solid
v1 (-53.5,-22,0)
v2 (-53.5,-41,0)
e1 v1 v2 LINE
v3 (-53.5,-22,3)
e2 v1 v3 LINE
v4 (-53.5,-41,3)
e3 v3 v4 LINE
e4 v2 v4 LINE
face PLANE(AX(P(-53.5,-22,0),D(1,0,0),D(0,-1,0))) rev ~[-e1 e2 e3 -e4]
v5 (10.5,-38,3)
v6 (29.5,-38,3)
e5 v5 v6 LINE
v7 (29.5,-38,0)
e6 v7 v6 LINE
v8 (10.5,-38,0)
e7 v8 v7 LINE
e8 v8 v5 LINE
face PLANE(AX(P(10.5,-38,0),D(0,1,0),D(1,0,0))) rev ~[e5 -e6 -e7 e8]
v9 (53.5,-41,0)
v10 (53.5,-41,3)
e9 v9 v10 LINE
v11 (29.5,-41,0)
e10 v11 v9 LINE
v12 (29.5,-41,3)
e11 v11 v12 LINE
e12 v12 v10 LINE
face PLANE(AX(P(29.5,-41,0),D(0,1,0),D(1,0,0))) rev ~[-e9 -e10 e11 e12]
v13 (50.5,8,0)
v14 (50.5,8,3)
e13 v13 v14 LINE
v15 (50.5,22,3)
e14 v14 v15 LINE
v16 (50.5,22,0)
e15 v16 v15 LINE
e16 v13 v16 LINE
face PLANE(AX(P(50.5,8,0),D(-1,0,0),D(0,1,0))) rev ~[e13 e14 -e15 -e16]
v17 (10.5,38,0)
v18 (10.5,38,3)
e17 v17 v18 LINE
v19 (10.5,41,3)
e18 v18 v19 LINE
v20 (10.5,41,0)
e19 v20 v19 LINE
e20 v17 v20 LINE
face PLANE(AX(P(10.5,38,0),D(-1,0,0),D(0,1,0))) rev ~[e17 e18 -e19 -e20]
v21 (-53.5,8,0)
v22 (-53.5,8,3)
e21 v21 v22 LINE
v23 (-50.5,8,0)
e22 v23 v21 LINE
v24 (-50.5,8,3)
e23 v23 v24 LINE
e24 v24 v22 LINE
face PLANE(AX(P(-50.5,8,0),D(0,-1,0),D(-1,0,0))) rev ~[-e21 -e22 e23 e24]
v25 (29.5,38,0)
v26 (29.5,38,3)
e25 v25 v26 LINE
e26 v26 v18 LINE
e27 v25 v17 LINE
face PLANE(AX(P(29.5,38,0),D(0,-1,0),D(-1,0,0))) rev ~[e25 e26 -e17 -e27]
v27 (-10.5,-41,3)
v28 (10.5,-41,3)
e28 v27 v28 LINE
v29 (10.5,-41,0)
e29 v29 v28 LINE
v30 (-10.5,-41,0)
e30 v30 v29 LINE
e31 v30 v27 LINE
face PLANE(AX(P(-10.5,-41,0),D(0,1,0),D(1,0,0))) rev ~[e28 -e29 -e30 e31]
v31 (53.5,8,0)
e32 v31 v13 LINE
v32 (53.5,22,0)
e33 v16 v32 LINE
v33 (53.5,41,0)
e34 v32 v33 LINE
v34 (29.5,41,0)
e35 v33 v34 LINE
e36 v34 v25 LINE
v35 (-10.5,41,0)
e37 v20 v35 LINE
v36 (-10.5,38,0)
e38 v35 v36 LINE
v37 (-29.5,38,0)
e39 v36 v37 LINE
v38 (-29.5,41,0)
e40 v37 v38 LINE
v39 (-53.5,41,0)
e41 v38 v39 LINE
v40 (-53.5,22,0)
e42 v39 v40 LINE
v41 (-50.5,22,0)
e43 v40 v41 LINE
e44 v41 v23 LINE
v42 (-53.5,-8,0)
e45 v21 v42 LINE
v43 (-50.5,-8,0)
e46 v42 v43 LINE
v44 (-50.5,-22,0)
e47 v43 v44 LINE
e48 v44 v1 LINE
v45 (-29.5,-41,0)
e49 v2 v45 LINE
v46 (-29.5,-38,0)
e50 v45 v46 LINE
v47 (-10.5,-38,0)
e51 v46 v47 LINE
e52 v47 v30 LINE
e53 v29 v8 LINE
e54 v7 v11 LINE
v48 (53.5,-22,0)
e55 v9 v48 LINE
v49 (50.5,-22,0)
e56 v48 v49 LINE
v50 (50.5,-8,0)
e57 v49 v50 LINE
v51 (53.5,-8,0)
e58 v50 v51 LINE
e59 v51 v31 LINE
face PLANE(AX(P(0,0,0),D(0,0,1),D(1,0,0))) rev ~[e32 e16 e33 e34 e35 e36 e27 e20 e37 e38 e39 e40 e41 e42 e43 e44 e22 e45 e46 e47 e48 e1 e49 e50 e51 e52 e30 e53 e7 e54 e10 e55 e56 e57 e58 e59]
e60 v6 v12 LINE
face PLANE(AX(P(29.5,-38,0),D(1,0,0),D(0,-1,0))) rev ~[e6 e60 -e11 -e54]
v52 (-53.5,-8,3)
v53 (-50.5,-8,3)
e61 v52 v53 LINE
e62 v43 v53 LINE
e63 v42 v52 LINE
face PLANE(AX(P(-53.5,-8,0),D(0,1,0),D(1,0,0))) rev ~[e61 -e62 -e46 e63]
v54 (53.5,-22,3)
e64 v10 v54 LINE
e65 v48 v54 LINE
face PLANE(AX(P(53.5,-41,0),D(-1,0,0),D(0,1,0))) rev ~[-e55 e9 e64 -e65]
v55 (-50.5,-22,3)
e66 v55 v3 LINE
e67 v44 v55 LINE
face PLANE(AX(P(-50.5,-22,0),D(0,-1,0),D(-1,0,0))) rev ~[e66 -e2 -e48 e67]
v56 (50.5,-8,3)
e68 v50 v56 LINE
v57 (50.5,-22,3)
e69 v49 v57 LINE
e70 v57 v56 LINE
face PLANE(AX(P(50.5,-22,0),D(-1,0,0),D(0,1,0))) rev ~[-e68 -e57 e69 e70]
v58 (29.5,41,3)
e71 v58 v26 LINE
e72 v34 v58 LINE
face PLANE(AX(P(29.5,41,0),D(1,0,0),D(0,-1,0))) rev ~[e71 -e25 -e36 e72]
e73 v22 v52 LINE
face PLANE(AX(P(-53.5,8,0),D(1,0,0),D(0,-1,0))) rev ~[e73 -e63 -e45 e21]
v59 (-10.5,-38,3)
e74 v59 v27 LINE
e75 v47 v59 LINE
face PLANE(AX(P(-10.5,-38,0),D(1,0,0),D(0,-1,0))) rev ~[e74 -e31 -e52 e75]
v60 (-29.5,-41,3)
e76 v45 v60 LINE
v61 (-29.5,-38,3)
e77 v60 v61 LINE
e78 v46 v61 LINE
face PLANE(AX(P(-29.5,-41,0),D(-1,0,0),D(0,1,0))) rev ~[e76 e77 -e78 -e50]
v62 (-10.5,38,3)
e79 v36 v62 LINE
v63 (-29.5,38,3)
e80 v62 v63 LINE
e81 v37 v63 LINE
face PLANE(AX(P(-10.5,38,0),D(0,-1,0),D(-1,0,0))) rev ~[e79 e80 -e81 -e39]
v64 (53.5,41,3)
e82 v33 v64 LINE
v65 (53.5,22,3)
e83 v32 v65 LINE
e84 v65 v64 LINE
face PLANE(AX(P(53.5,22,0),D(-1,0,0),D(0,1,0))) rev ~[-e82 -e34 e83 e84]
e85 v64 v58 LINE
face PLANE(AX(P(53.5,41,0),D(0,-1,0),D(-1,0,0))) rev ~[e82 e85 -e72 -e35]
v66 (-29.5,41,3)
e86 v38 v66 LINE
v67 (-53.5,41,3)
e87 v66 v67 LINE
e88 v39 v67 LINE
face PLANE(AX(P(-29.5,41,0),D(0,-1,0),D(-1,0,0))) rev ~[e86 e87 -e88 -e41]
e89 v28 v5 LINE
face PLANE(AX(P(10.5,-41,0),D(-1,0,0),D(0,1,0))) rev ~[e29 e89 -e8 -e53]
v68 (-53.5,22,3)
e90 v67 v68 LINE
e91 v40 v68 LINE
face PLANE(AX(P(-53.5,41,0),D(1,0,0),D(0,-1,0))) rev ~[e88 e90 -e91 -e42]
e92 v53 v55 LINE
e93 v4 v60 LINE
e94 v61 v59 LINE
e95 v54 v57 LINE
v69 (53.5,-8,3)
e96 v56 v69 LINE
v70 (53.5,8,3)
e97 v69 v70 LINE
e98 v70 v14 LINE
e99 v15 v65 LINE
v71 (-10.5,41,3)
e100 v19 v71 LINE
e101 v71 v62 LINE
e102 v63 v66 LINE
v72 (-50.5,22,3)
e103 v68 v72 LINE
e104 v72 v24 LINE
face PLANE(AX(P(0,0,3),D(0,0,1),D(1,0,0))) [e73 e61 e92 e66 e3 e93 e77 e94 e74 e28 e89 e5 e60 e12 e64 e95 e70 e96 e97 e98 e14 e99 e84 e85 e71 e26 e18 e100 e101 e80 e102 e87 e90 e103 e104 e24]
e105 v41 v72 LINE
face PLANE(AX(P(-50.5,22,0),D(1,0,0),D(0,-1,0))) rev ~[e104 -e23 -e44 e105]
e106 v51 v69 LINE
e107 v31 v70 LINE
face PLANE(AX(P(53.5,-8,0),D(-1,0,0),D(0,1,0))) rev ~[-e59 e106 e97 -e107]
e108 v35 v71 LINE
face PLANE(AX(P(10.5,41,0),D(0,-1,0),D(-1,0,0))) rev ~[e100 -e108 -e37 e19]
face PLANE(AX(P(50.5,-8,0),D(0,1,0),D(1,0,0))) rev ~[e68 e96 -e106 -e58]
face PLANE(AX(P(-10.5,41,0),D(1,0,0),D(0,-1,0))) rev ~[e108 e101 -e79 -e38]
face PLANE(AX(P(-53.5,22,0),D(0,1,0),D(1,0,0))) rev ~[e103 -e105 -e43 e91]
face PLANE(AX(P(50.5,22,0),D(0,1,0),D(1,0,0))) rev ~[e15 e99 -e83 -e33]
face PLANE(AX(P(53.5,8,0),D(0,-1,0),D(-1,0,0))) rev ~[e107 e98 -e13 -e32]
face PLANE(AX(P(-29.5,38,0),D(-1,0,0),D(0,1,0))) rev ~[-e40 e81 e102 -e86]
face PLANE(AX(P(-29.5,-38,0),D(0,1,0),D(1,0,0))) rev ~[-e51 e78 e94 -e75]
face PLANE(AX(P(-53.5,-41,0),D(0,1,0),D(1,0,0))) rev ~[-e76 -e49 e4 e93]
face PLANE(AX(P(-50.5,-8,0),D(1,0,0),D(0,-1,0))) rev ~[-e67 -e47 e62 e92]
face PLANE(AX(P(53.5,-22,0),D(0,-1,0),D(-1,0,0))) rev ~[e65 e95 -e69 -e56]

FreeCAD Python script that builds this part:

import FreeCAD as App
import Part
import Sketcher
Q = App.Units.Quantity

doc = App.newDocument("Part")
body = doc.addObject("PartDesign::Body", "Body")

sketch1 = body.newObject("Sketcher::SketchObject", "Sketch")
sketch1.AttachmentSupport = (doc.getObject("XY_Plane"), [""])
sketch1.MapMode = "FlatFace"
sketch1.addGeometry([
    Part.LineSegment(App.Vector(10.5, -41, 0), App.Vector(10.5, -38, 0)),
    Part.LineSegment(App.Vector(10.5, -38, 0), App.Vector(29.5, -38, 0)),
    Part.LineSegment(App.Vector(29.5, -38, 0), App.Vector(29.5, -41, 0)),
    Part.LineSegment(App.Vector(29.5, -41, 0), App.Vector(53.5, -41, 0)),
    Part.LineSegment(App.Vector(53.5, -41, 0), App.Vector(53.5, -22, 0)),
    Part.LineSegment(App.Vector(53.5, -22, 0), App.Vector(50.5, -22, 0)),
    Part.LineSegment(App.Vector(50.5, -22, 0), App.Vector(50.5, -8, 0)),
    Part.LineSegment(App.Vector(50.5, -8, 0), App.Vector(53.5, -8, 0)),
    Part.LineSegment(App.Vector(53.5, -8, 0), App.Vector(53.5, 8, 0)),
    Part.LineSegment(App.Vector(53.5, 8, 0), App.Vector(50.5, 8, 0)),
    Part.LineSegment(App.Vector(50.5, 8, 0), App.Vector(50.5, 22, 0)),
    Part.LineSegment(App.Vector(50.5, 22, 0), App.Vector(53.5, 22, 0)),
    Part.LineSegment(App.Vector(53.5, 22, 0), App.Vector(53.5, 41, 0)),
    Part.LineSegment(App.Vector(53.5, 41, 0), App.Vector(29.5, 41, 0)),
    Part.LineSegment(App.Vector(29.5, 41, 0), App.Vector(29.5, 38, 0)),
    Part.LineSegment(App.Vector(29.5, 38, 0), App.Vector(10.5, 38, 0)),
    Part.LineSegment(App.Vector(10.5, 38, 0), App.Vector(10.5, 41, 0)),
    Part.LineSegment(App.Vector(10.5, 41, 0), App.Vector(-10.5, 41, 0)),
    Part.LineSegment(App.Vector(-10.5, 41, 0), App.Vector(-10.5, 38, 0)),
    Part.LineSegment(App.Vector(-10.5, 38, 0), App.Vector(-29.5, 38, 0)),
    Part.LineSegment(App.Vector(-29.5, 38, 0), App.Vector(-29.5, 41, 0)),
    Part.LineSegment(App.Vector(-29.5, 41, 0), App.Vector(-53.5, 41, 0)),
    Part.LineSegment(App.Vector(-53.5, 41, 0), App.Vector(-53.5, 22, 0)),
    Part.LineSegment(App.Vector(-53.5, 22, 0), App.Vector(-50.5, 22, 0)),
    Part.LineSegment(App.Vector(-50.5, 22, 0), App.Vector(-50.5, 8, 0)),
    Part.LineSegment(App.Vector(-50.5, 8, 0), App.Vector(-53.5, 8, 0)),
    Part.LineSegment(App.Vector(-53.5, 8, 0), App.Vector(-53.5, -8, 0)),
    Part.LineSegment(App.Vector(-53.5, -8, 0), App.Vector(-50.5, -8, 0)),
    Part.LineSegment(App.Vector(-50.5, -8, 0), App.Vector(-50.5, -22, 0)),
    Part.LineSegment(App.Vector(-50.5, -22, 0), App.Vector(-53.5, -22, 0)),
    Part.LineSegment(App.Vector(-53.5, -22, 0), App.Vector(-53.5, -41, 0)),
    Part.LineSegment(App.Vector(-53.5, -41, 0), App.Vector(-29.5, -41, 0)),
    Part.LineSegment(App.Vector(-29.5, -41, 0), App.Vector(-29.5, -38, 0)),
    Part.LineSegment(App.Vector(-29.5, -38, 0), App.Vector(-10.5, -38, 0)),
    Part.LineSegment(App.Vector(-10.5, -38, 0), App.Vector(-10.5, -41, 0)),
    Part.LineSegment(App.Vector(-10.5, -41, 0), App.Vector(10.5, -41, 0)),
], False)
sketch1.addConstraint([
    Sketcher.Constraint("Coincident", 0, 2, 1, 1),
    Sketcher.Constraint("Coincident", 1, 2, 2, 1),
    Sketcher.Constraint("Coincident", 2, 2, 3, 1),
    Sketcher.Constraint("Coincident", 3, 2, 4, 1),
    Sketcher.Constraint("Coincident", 4, 2, 5, 1),
    Sketcher.Constraint("Coincident", 5, 2, 6, 1),
    Sketcher.Constraint("Coincident", 6, 2, 7, 1),
    Sketcher.Constraint("Coincident", 7, 2, 8, 1),
    Sketcher.Constraint("Coincident", 8, 2, 9, 1),
    Sketcher.Constraint("Coincident", 9, 2, 10, 1),
    Sketcher.Constraint("Coincident", 10, 2, 11, 1),
    Sketcher.Constraint("Coincident", 11, 2, 12, 1),
    Sketcher.Constraint("Coincident", 12, 2, 13, 1),
    Sketcher.Constraint("Coincident", 13, 2, 14, 1),
    Sketcher.Constraint("Coincident", 14, 2, 15, 1),
    Sketcher.Constraint("Coincident", 15, 2, 16, 1),
    Sketcher.Constraint("Coincident", 16, 2, 17, 1),
    Sketcher.Constraint("Coincident", 17, 2, 18, 1),
    Sketcher.Constraint("Coincident", 18, 2, 19, 1),
    Sketcher.Constraint("Coincident", 19, 2, 20, 1),
    Sketcher.Constraint("Coincident", 20, 2, 21, 1),
    Sketcher.Constraint("Coincident", 21, 2, 22, 1),
    Sketcher.Constraint("Coincident", 22, 2, 23, 1),
    Sketcher.Constraint("Coincident", 23, 2, 24, 1),
    Sketcher.Constraint("Coincident", 24, 2, 25, 1),
    Sketcher.Constraint("Coincident", 25, 2, 26, 1),
    Sketcher.Constraint("Coincident", 26, 2, 27, 1),
    Sketcher.Constraint("Coincident", 27, 2, 28, 1),
    Sketcher.Constraint("Coincident", 28, 2, 29, 1),
    Sketcher.Constraint("Coincident", 29, 2, 30, 1),
    Sketcher.Constraint("Coincident", 30, 2, 31, 1),
    Sketcher.Constraint("Coincident", 31, 2, 32, 1),
    Sketcher.Constraint("Coincident", 32, 2, 33, 1),
    Sketcher.Constraint("Coincident", 33, 2, 34, 1),
    Sketcher.Constraint("Coincident", 34, 2, 35, 1),
    Sketcher.Constraint("Coincident", 35, 2, 0, 1),
    Sketcher.Constraint("Vertical", 0),
    Sketcher.Constraint("Horizontal", 1),
    Sketcher.Constraint("Vertical", 2),
    Sketcher.Constraint("Horizontal", 3),
    Sketcher.Constraint("Vertical", 4),
    Sketcher.Constraint("Horizontal", 5),
    Sketcher.Constraint("Vertical", 6),
    Sketcher.Constraint("Horizontal", 7),
    Sketcher.Constraint("Vertical", 8),
    Sketcher.Constraint("Horizontal", 9),
    Sketcher.Constraint("Vertical", 10),
    Sketcher.Constraint("Horizontal", 11),
    Sketcher.Constraint("Vertical", 12),
    Sketcher.Constraint("Horizontal", 13),
    Sketcher.Constraint("Vertical", 14),
    Sketcher.Constraint("Horizontal", 15),
    Sketcher.Constraint("Vertical", 16),
    Sketcher.Constraint("Horizontal", 17),
    Sketcher.Constraint("Vertical", 18),
    Sketcher.Constraint("Horizontal", 19),
    Sketcher.Constraint("Vertical", 20),
    Sketcher.Constraint("Horizontal", 21),
    Sketcher.Constraint("Vertical", 22),
    Sketcher.Constraint("Horizontal", 23),
    Sketcher.Constraint("Vertical", 24),
    Sketcher.Constraint("Horizontal", 25),
    Sketcher.Constraint("Vertical", 26),
    Sketcher.Constraint("Horizontal", 27),
    Sketcher.Constraint("Vertical", 28),
    Sketcher.Constraint("Horizontal", 29),
    Sketcher.Constraint("Vertical", 30),
    Sketcher.Constraint("Horizontal", 31),
    Sketcher.Constraint("Vertical", 32),
    Sketcher.Constraint("Horizontal", 33),
    Sketcher.Constraint("Vertical", 34),
    Sketcher.Constraint("Horizontal", 35),
    Sketcher.Constraint("Symmetric", 0, 2, 18, 2, -1, 1),
    Sketcher.Constraint("Symmetric", 2, 2, 20, 2, -1, 1),
    Sketcher.Constraint("Symmetric", 4, 2, 22, 2, -1, 1),
    Sketcher.Constraint("Symmetric", 6, 2, 24, 2, -1, 1),
    Sketcher.Constraint("Symmetric", 8, 2, 26, 2, -1, 1),
    Sketcher.Constraint("Symmetric", 10, 2, 28, 2, -1, 1),
    Sketcher.Constraint("Symmetric", 12, 2, 30, 2, -1, 1),
    Sketcher.Constraint("Symmetric", 14, 2, 32, 2, -1, 1),
    Sketcher.Constraint("Symmetric", 16, 2, 34, 2, -1, 1),
    Sketcher.Constraint("Symmetric", 15, 2, 18, 2, -2),
    Sketcher.Constraint("Symmetric", 13, 2, 20, 2, -2),
    Sketcher.Constraint("Symmetric", 11, 2, 22, 2, -2),
    Sketcher.Constraint("Symmetric", 9, 2, 24, 2, -2),
    Sketcher.Constraint("Horizontal", 13, 2, 16, 2),
    Sketcher.Constraint("Vertical", 4, 2, 7, 2),
    Sketcher.Constraint("Equal", 29, 0),
    Sketcher.Constraint("Equal", 33, 4),
    Sketcher.Constraint("DistanceX", 1, 1, 1, 2, Q("19 mm")),
    Sketcher.Constraint("DistanceX", 3, 1, 3, 2, Q("24 mm")),
    Sketcher.Constraint("DistanceX", 5, 2, 5, 1, Q("3 mm")),
    Sketcher.Constraint("DistanceX", 17, 2, 17, 1, Q("21 mm")),
    Sketcher.Constraint("DistanceY", 6, 1, 6, 2, Q("14 mm")),
    Sketcher.Constraint("DistanceY", 8, 1, 8, 2, Q("16 mm")),
])
pad1 = body.newObject("PartDesign::Pad", "Pad")
pad1.Profile = sketch1
pad1.Length = 3

doc.recompute()
